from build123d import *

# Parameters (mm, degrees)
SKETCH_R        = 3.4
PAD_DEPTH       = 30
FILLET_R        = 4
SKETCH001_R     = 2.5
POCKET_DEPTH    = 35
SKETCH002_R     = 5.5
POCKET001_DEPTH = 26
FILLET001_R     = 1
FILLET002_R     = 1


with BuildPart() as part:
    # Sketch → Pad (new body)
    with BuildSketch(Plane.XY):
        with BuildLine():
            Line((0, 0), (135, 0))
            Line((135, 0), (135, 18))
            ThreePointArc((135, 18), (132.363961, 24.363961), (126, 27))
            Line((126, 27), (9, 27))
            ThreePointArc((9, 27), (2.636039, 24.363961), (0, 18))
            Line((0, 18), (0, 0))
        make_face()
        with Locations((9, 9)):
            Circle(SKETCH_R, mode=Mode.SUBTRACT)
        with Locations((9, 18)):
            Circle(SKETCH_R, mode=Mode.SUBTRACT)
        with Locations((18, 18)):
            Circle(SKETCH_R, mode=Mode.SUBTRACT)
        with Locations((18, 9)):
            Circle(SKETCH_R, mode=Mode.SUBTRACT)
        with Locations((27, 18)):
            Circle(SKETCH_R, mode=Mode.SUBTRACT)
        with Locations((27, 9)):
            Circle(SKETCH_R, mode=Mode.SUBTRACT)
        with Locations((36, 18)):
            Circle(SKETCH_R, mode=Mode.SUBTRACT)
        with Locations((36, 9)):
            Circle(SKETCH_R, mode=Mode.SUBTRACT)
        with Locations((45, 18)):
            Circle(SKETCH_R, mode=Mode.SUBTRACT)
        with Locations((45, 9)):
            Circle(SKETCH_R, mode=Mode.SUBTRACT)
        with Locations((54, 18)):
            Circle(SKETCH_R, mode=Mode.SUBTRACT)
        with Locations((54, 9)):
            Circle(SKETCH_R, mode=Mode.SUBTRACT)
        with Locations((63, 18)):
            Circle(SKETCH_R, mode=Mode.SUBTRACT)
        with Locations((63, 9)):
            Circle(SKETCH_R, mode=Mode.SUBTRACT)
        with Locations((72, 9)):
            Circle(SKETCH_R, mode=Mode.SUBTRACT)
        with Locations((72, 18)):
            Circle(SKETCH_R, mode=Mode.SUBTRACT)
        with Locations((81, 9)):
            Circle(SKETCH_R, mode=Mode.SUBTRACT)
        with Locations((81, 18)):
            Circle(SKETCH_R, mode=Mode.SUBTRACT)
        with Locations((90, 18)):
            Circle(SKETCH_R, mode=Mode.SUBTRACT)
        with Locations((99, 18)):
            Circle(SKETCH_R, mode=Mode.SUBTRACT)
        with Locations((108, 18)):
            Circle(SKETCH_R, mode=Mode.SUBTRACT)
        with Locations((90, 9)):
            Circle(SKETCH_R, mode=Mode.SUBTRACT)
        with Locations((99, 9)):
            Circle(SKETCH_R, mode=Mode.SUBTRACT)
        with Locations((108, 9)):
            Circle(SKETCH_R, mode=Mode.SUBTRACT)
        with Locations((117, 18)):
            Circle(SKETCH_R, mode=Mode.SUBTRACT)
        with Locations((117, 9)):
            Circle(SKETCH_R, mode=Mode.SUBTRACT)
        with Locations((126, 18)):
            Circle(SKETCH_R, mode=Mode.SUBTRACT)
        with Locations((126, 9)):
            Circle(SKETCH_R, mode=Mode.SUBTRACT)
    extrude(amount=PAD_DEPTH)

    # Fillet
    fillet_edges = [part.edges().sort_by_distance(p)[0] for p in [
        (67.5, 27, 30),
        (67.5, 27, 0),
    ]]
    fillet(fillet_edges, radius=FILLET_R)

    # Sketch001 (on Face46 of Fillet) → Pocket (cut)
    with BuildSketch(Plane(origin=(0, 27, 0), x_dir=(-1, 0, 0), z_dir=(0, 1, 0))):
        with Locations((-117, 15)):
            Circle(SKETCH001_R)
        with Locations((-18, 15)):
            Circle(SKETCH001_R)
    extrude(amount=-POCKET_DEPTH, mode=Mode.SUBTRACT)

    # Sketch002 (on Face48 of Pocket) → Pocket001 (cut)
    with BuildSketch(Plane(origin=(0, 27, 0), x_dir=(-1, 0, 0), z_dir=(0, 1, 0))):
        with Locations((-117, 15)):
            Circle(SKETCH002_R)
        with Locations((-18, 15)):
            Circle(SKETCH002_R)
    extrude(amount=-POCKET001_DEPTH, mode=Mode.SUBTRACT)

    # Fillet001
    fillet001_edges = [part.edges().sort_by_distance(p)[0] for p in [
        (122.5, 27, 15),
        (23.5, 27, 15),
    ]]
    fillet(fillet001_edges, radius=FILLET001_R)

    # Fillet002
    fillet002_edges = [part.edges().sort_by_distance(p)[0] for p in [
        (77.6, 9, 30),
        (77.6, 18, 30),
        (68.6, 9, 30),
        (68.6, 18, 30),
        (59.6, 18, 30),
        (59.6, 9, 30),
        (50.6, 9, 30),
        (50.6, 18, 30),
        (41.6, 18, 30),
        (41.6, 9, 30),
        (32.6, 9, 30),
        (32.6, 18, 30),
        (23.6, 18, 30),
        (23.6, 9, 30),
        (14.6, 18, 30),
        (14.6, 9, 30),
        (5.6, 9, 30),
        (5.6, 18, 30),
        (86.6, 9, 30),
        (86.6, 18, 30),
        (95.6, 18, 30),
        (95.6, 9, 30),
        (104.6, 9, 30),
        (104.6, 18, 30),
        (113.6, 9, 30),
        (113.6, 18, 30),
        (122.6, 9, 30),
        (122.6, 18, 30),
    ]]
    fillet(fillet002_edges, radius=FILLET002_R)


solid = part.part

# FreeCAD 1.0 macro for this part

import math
import FreeCAD as App
import Part
import Sketcher

V = App.Vector


def edges_at(feature, points):
    """Names of the edges that pass closest to the given points."""
    edges = feature.Shape.Edges
    near = lambda p: min(range(len(edges)), key=lambda i: edges[i].distToShape(Part.Vertex(*p))[0])
    return sorted({f"Edge{near(p) + 1}" for p in points})

doc = App.newDocument("Part")
body = doc.addObject("PartDesign::Body", "Body")

# Sketch on XY plane
sketch1 = body.newObject("Sketcher::SketchObject", "Sketch")
sketch1.AttachmentSupport = (doc.getObject("XY_Plane"), [""])
sketch1.MapMode = "FlatFace"
sketch1.addGeometry([
    Part.LineSegment(V(0, 0, 0), V(135, 0, 0)),  # 0
    Part.LineSegment(V(135, 0, 0), V(135, 18, 0)),  # 1
    Part.ArcOfCircle(Part.Circle(V(126, 18, 0), V(0, 0, 1), 9), math.radians(0.000001), math.radians(89.999999)),  # 2
    Part.LineSegment(V(126, 27, 0), V(9, 27, 0)),  # 3
    Part.ArcOfCircle(Part.Circle(V(9, 18, 0), V(0, 0, 1), 9), math.radians(90.000001), math.radians(179.999999)),  # 4
    Part.LineSegment(V(0, 18, 0), V(0, 0, 0)),  # 5
    Part.Circle(V(9, 9, 0), V(0, 0, 1), 3.4),  # 6
    Part.Circle(V(18, 9, 0), V(0, 0, 1), 3.4),  # 7
    Part.Circle(V(27, 9, 0), V(0, 0, 1), 3.4),  # 8
    Part.Circle(V(36, 9, 0), V(0, 0, 1), 3.4),  # 9
    Part.Circle(V(45, 9, 0), V(0, 0, 1), 3.4),  # 10
    Part.Circle(V(54, 9, 0), V(0, 0, 1), 3.4),  # 11
    Part.Circle(V(63, 9, 0), V(0, 0, 1), 3.4),  # 12
    Part.Circle(V(72, 9, 0), V(0, 0, 1), 3.4),  # 13
    Part.Circle(V(81, 9, 0), V(0, 0, 1), 3.4),  # 14
    Part.Circle(V(90, 9, 0), V(0, 0, 1), 3.4),  # 15
    Part.Circle(V(99, 9, 0), V(0, 0, 1), 3.4),  # 16
    Part.Circle(V(108, 9, 0), V(0, 0, 1), 3.4),  # 17
    Part.Circle(V(117, 9, 0), V(0, 0, 1), 3.4),  # 18
    Part.Circle(V(126, 9, 0), V(0, 0, 1), 3.4),  # 19
    Part.Circle(V(9, 18, 0), V(0, 0, 1), 3.4),  # 20
    Part.Circle(V(18, 18, 0), V(0, 0, 1), 3.4),  # 21
    Part.Circle(V(27, 18, 0), V(0, 0, 1), 3.4),  # 22
    Part.Circle(V(36, 18, 0), V(0, 0, 1), 3.4),  # 23
    Part.Circle(V(45, 18, 0), V(0, 0, 1), 3.4),  # 24
    Part.Circle(V(54, 18, 0), V(0, 0, 1), 3.4),  # 25
    Part.Circle(V(63, 18, 0), V(0, 0, 1), 3.4),  # 26
    Part.Circle(V(72, 18, 0), V(0, 0, 1), 3.4),  # 27
    Part.Circle(V(81, 18, 0), V(0, 0, 1), 3.4),  # 28
    Part.Circle(V(90, 18, 0), V(0, 0, 1), 3.4),  # 29
    Part.Circle(V(99, 18, 0), V(0, 0, 1), 3.4),  # 30
    Part.Circle(V(108, 18, 0), V(0, 0, 1), 3.4),  # 31
    Part.Circle(V(117, 18, 0), V(0, 0, 1), 3.4),  # 32
    Part.Circle(V(126, 18, 0), V(0, 0, 1), 3.4),  # 33
], False)
sketch1.addConstraint([
    Sketcher.Constraint("Coincident", 0, 2, 1, 1),
    Sketcher.Constraint("Tangent", 1, 2, 2, 1),
    Sketcher.Constraint("Tangent", 2, 2, 3, 1),
    Sketcher.Constraint("Tangent", 3, 2, 4, 1),
    Sketcher.Constraint("Tangent", 4, 2, 5, 1),
    Sketcher.Constraint("Coincident", 5, 2, 0, 1),
    Sketcher.Constraint("Horizontal", 0),
    Sketcher.Constraint("Vertical", 1),
    Sketcher.Constraint("Horizontal", 3),
    Sketcher.Constraint("Vertical", 5),
    Sketcher.Constraint("Coincident", 5, 2, -1, 1),
    Sketcher.Constraint("Coincident", 20, 3, 4, 3),
    Sketcher.Constraint("Coincident", 33, 3, 2, 3),
    Sketcher.Constraint("Equal", 2, 4),
    Sketcher.Constraint("Equal", 6, 7),
    Sketcher.Constraint("Equal", 7, 8),
    Sketcher.Constraint("Equal", 8, 9),
    Sketcher.Constraint("Equal", 9, 10),
    Sketcher.Constraint("Equal", 10, 11),
    Sketcher.Constraint("Equal", 11, 12),
    Sketcher.Constraint("Equal", 12, 13),
    Sketcher.Constraint("Equal", 13, 14),
    Sketcher.Constraint("Equal", 14, 15),
    Sketcher.Constraint("Equal", 15, 16),
    Sketcher.Constraint("Equal", 16, 17),
    Sketcher.Constraint("Equal", 17, 18),
    Sketcher.Constraint("Equal", 18, 19),
    Sketcher.Constraint("Equal", 19, 20),
    Sketcher.Constraint("Equal", 20, 21),
    Sketcher.Constraint("Equal", 21, 22),
    Sketcher.Constraint("Equal", 22, 23),
    Sketcher.Constraint("Equal", 23, 24),
    Sketcher.Constraint("Equal", 24, 25),
    Sketcher.Constraint("Equal", 25, 26),
    Sketcher.Constraint("Equal", 26, 27),
    Sketcher.Constraint("Equal", 27, 28),
    Sketcher.Constraint("Equal", 28, 29),
    Sketcher.Constraint("Equal", 29, 30),
    Sketcher.Constraint("Equal", 30, 31),
    Sketcher.Constraint("Equal", 31, 32),
    Sketcher.Constraint("Equal", 32, 33),
    Sketcher.Constraint("Horizontal", 6, 3, 7, 3),
    Sketcher.Constraint("Horizontal", 7, 3, 8, 3),
    Sketcher.Constraint("Horizontal", 8, 3, 9, 3),
    Sketcher.Constraint("Horizontal", 9, 3, 10, 3),
    Sketcher.Constraint("Horizontal", 10, 3, 11, 3),
    Sketcher.Constraint("Horizontal", 11, 3, 12, 3),
    Sketcher.Constraint("Horizontal", 12, 3, 13, 3),
    Sketcher.Constraint("Horizontal", 13, 3, 14, 3),
    Sketcher.Constraint("Horizontal", 14, 3, 15, 3),
    Sketcher.Constraint("Horizontal", 15, 3, 16, 3),
    Sketcher.Constraint("Horizontal", 16, 3, 17, 3),
    Sketcher.Constraint("Horizontal", 17, 3, 18, 3),
    Sketcher.Constraint("Horizontal", 18, 3, 19, 3),
    Sketcher.Constraint("Horizontal", 20, 3, 21, 3),
    Sketcher.Constraint("Horizontal", 21, 3, 22, 3),
    Sketcher.Constraint("Horizontal", 22, 3, 23, 3),
    Sketcher.Constraint("Horizontal", 23, 3, 24, 3),
    Sketcher.Constraint("Horizontal", 24, 3, 25, 3),
    Sketcher.Constraint("Horizontal", 25, 3, 26, 3),
    Sketcher.Constraint("Horizontal", 26, 3, 27, 3),
    Sketcher.Constraint("Horizontal", 27, 3, 28, 3),
    Sketcher.Constraint("Horizontal", 28, 3, 29, 3),
    Sketcher.Constraint("Horizontal", 29, 3, 30, 3),
    Sketcher.Constraint("Horizontal", 30, 3, 31, 3),
    Sketcher.Constraint("Horizontal", 31, 3, 32, 3),
    Sketcher.Constraint("Vertical", 4, 3, 6, 3),
    Sketcher.Constraint("Vertical", 2, 3, 19, 3),
    Sketcher.Constraint("Vertical", 7, 3, 21, 3),
    Sketcher.Constraint("Vertical", 8, 3, 22, 3),
    Sketcher.Constraint("Vertical", 9, 3, 23, 3),
    Sketcher.Constraint("Vertical", 10, 3, 24, 3),
    Sketcher.Constraint("Vertical", 11, 3, 25, 3),
    Sketcher.Constraint("Vertical", 12, 3, 26, 3),
    Sketcher.Constraint("Vertical", 13, 3, 27, 3),
    Sketcher.Constraint("Vertical", 14, 3, 28, 3),
    Sketcher.Constraint("Vertical", 15, 3, 29, 3),
    Sketcher.Constraint("Vertical", 16, 3, 30, 3),
    Sketcher.Constraint("Vertical", 17, 3, 31, 3),
    Sketcher.Constraint("Vertical", 18, 3, 32, 3),
    Sketcher.Constraint("Radius", 2, 9.0),
    Sketcher.Constraint("Diameter", 6, 6.8),
    Sketcher.Constraint("DistanceX", 0, 1, 0, 2, 135.0),
    Sketcher.Constraint("DistanceY", 1, 1, 1, 2, 18.0),
    Sketcher.Constraint("DistanceY", -1, 1, 6, 3, 9.0),
    Sketcher.Constraint("DistanceX", -1, 1, 7, 3, 18.0),
    Sketcher.Constraint("DistanceX", -1, 1, 8, 3, 27.0),
    Sketcher.Constraint("DistanceX", -1, 1, 9, 3, 36.0),
    Sketcher.Constraint("DistanceX", -1, 1, 10, 3, 45.0),
    Sketcher.Constraint("DistanceX", -1, 1, 11, 3, 54.0),
    Sketcher.Constraint("DistanceX", -1, 1, 12, 3, 63.0),
    Sketcher.Constraint("DistanceX", -1, 1, 13, 3, 72.0),
    Sketcher.Constraint("DistanceX", -1, 1, 14, 3, 81.0),
    Sketcher.Constraint("DistanceX", -1, 1, 15, 3, 90.0),
    Sketcher.Constraint("DistanceX", -1, 1, 16, 3, 99.0),
    Sketcher.Constraint("DistanceX", -1, 1, 17, 3, 108.0),
    Sketcher.Constraint("DistanceX", -1, 1, 18, 3, 117.0),
])
pad1 = body.newObject("PartDesign::Pad", "Pad")
pad1.Profile = sketch1
pad1.Length = 30
doc.recompute()

fillet = body.newObject("PartDesign::Fillet", "Fillet")
fillet.Base = (pad1, edges_at(pad1, [(67.5, 27, 30), (67.5, 27, 0)]))
fillet.Radius = 4

# Sketch on XZ plane
sketch2 = body.newObject("Sketcher::SketchObject", "Sketch001")
sketch2.AttachmentSupport = (doc.getObject("XZ_Plane"), [""])
sketch2.MapMode = "FlatFace"
sketch2.AttachmentOffset = App.Placement(V(0, 0, -27), App.Rotation())
sketch2.addGeometry([
    Part.Circle(V(117, 15, 0), V(0, 0, 1), 2.5),
    Part.Circle(V(18, 15, 0), V(0, 0, 1), 2.5),
], False)
sketch2.addConstraint([
    Sketcher.Constraint("Equal", 0, 1),
    Sketcher.Constraint("Horizontal", 0, 3, 1, 3),
    Sketcher.Constraint("Diameter", 0, 5.0),
    Sketcher.Constraint("DistanceX", -1, 1, 0, 3, 117.0),
    Sketcher.Constraint("DistanceY", -1, 1, 0, 3, 15.0),
    Sketcher.Constraint("DistanceX", -1, 1, 1, 3, 18.0),
])
pocket1 = body.newObject("PartDesign::Pocket", "Pocket")
pocket1.Profile = sketch2
pocket1.Length = 35
pocket1.Reversed = True

# Sketch on XZ plane
sketch3 = body.newObject("Sketcher::SketchObject", "Sketch002")
sketch3.AttachmentSupport = (doc.getObject("XZ_Plane"), [""])
sketch3.MapMode = "FlatFace"
sketch3.AttachmentOffset = App.Placement(V(0, 0, -27), App.Rotation())
sketch3.addGeometry([
    Part.Circle(V(117, 15, 0), V(0, 0, 1), 5.5),
    Part.Circle(V(18, 15, 0), V(0, 0, 1), 5.5),
], False)
sketch3.addConstraint([
    Sketcher.Constraint("Equal", 0, 1),
    Sketcher.Constraint("Horizontal", 0, 3, 1, 3),
    Sketcher.Constraint("Diameter", 0, 11.0),
    Sketcher.Constraint("DistanceX", -1, 1, 0, 3, 117.0),
    Sketcher.Constraint("DistanceY", -1, 1, 0, 3, 15.0),
    Sketcher.Constraint("DistanceX", -1, 1, 1, 3, 18.0),
])
pocket2 = body.newObject("PartDesign::Pocket", "Pocket001")
pocket2.Profile = sketch3
pocket2.Length = 26
pocket2.Reversed = True
doc.recompute()

fillet2 = body.newObject("PartDesign::Fillet", "Fillet001")
fillet2.Base = (pocket2, edges_at(pocket2, [(122.5, 27, 15), (23.5, 27, 15)]))
fillet2.Radius = 1
doc.recompute()

fillet3 = body.newObject("PartDesign::Fillet", "Fillet002")
fillet3.Base = (fillet2, edges_at(fillet2, [
    (77.6, 9, 30),
    (77.6, 18, 30),
    (68.6, 9, 30),
    (68.6, 18, 30),
    (59.6, 18, 30),
    (59.6, 9, 30),
    (50.6, 9, 30),
    (50.6, 18, 30),
    (41.6, 18, 30),
    (41.6, 9, 30),
    (32.6, 9, 30),
    (32.6, 18, 30),
    (23.6, 18, 30),
    (23.6, 9, 30),
    (14.6, 18, 30),
    (14.6, 9, 30),
    (5.6, 9, 30),
    (5.6, 18, 30),
    (86.6, 9, 30),
    (86.6, 18, 30),
    (95.6, 18, 30),
    (95.6, 9, 30),
    (104.6, 9, 30),
    (104.6, 18, 30),
    (113.6, 9, 30),
    (113.6, 18, 30),
    (122.6, 9, 30),
    (122.6, 18, 30),
]))
fillet3.Radius = 1

doc.recompute()
